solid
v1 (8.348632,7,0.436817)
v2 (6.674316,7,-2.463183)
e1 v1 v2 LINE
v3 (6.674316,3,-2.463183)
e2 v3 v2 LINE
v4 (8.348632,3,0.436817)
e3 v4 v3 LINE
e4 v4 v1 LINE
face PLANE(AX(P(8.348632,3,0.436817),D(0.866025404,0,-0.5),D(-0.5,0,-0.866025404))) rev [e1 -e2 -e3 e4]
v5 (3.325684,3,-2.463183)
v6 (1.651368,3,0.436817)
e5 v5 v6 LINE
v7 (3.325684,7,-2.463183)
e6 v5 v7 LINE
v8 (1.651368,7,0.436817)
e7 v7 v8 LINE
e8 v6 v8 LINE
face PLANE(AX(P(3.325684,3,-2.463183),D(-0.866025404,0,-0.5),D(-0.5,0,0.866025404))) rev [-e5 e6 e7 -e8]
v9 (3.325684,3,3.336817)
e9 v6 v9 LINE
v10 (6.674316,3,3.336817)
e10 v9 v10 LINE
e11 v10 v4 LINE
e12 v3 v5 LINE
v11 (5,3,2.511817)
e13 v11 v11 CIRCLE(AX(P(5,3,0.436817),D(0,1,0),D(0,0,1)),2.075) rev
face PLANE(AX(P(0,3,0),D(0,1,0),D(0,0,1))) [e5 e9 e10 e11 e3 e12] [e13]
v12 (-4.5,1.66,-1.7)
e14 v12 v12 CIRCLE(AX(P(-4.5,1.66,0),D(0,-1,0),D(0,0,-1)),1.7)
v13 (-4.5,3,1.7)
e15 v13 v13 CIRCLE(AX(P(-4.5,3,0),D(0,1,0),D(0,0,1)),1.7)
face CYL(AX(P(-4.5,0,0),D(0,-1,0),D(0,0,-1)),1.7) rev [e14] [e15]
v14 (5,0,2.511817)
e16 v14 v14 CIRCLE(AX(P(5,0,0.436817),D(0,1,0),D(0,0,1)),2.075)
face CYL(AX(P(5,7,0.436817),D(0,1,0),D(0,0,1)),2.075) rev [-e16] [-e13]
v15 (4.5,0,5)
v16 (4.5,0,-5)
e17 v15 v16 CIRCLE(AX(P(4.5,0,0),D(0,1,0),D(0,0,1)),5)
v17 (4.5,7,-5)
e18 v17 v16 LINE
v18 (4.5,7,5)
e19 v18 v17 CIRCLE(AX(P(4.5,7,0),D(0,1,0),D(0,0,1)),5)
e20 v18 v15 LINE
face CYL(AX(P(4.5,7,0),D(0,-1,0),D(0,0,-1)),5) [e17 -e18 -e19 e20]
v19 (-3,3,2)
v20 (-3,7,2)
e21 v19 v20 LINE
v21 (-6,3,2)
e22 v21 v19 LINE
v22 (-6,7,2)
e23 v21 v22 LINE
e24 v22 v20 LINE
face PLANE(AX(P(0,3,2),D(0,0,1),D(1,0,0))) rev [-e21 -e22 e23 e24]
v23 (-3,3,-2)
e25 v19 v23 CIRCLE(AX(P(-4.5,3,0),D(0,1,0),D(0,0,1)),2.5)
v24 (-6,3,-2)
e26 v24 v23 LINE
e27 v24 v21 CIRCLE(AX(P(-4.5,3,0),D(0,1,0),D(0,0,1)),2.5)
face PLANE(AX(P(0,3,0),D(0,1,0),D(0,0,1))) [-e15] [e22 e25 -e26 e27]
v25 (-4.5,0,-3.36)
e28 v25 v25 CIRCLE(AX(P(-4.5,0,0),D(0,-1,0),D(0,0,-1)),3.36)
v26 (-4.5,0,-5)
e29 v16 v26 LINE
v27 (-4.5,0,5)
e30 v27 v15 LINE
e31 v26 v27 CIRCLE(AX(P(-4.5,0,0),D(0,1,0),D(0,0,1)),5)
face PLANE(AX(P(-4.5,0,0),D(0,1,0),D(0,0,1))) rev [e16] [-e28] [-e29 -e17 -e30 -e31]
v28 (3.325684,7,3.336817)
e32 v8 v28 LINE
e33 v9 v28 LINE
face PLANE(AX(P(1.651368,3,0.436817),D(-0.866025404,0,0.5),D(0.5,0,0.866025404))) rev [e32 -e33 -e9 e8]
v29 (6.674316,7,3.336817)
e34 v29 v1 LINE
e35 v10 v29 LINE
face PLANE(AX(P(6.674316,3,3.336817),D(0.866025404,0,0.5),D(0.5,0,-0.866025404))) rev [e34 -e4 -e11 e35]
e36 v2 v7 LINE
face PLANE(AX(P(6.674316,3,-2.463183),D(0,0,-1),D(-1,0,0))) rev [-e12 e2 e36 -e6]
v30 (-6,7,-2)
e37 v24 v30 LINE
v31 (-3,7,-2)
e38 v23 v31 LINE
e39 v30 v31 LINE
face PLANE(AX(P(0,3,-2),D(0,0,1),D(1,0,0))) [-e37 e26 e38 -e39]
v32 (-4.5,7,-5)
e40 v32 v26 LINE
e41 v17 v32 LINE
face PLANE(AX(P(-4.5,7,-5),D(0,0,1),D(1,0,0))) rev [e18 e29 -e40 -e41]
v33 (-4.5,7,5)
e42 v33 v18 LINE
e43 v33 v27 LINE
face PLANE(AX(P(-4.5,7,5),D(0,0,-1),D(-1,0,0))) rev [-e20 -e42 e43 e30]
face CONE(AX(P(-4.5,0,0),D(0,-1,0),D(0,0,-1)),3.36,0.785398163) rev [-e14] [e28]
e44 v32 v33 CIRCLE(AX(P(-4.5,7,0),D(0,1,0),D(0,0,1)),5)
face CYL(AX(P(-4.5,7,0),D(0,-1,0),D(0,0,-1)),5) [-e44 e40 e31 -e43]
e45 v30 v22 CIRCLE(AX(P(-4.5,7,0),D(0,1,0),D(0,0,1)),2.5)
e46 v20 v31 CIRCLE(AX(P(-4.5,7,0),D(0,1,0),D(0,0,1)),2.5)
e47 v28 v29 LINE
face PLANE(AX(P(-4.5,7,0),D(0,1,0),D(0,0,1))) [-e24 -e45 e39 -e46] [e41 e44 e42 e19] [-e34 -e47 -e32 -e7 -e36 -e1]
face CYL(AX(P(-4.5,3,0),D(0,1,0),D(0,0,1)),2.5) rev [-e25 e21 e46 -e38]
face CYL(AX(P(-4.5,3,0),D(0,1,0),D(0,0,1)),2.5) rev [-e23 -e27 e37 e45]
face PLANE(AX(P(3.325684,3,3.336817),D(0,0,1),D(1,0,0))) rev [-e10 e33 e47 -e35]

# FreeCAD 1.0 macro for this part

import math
import FreeCAD as App
import Part
import Sketcher

V = App.Vector
Q = App.Units.Quantity

doc = App.newDocument("Part")
body = doc.addObject("PartDesign::Body", "Body")

sketch1 = body.newObject("Sketcher::SketchObject", "Sketch")
sketch1.AttachmentSupport = (doc.getObject("XZ_Plane"), [""])
sketch1.MapMode = "FlatFace"
sketch1.addGeometry([
    Part.LineSegment(V(4, -5, 0), V(-4, -5, 0)),
    Part.ArcOfCircle(Part.Circle(V(-4, 0, 0), V(0, 0, 1), 5), math.radians(90), math.radians(270)),
    Part.LineSegment(V(-4, 5, 0), V(4, 5, 0)),
    Part.ArcOfCircle(Part.Circle(V(4, 0, 0), V(0, 0, 1), 5), math.radians(-90), math.radians(90)),
], False)
sketch1.addConstraint([
    Sketcher.Constraint("Tangent", 0, 2, 1, 2),
    Sketcher.Constraint("Tangent", 1, 1, 2, 1),
    Sketcher.Constraint("Tangent", 2, 2, 3, 2),
    Sketcher.Constraint("Tangent", 3, 1, 0, 1),
    Sketcher.Constraint("Horizontal", 0),
    Sketcher.Constraint("Horizontal", 2),
    Sketcher.Constraint("Symmetric", 1, 3, 3, 3, -1, 1),
    Sketcher.Constraint("Radius", 1, 5.0),
    Sketcher.Constraint("DistanceX", 0, 2, 0, 1, 9.0),
])
pad1 = body.newObject("PartDesign::Pad", "Pad")
pad1.Profile = sketch1
pad1.Length = 7
pad1.Reversed = True

sketch2 = body.newObject("Sketcher::SketchObject", "Sketch001")
sketch2.AttachmentSupport = (doc.getObject("XZ_Plane"), [""])
sketch2.MapMode = "FlatFace"
sketch2.AttachmentOffset = App.Placement(V(0, 0, -7), App.Rotation())
sketch2.addGeometry([
    Part.LineSegment(V(-3, -2, 0), V(-6, -2, 0)),
    Part.ArcOfCircle(Part.Circle(V(-4.5, 0, 0), V(0, 0, 1), 2.5), math.radians(127), math.radians(233)),
    Part.LineSegment(V(-6, 2, 0), V(-3, 2, 0)),
    Part.ArcOfCircle(Part.Circle(V(-4.5, 0, 0), V(0, 0, 1), 2.5), math.radians(0), math.radians(53)),
    Part.ArcOfCircle(Part.Circle(V(-4.5, 0, 0), V(0, 0, 1), 2.5), math.radians(-53), math.radians(0)),
], False)
sketch2.addConstraint([
    Sketcher.Constraint("Coincident", 0, 2, 1, 2),
    Sketcher.Constraint("Coincident", 1, 1, 2, 1),
    Sketcher.Constraint("Coincident", 2, 2, 3, 2),
    Sketcher.Constraint("Tangent", 3, 1, 4, 2),
    Sketcher.Constraint("Coincident", 4, 1, 0, 1),
    Sketcher.Constraint("Horizontal", 0),
    Sketcher.Constraint("Horizontal", 2),
    Sketcher.Constraint("Coincident", 3, 3, 1, 3),
    Sketcher.Constraint("Equal", 1, 3),
    Sketcher.Constraint("Equal", 3, 4),
    Sketcher.Constraint("Symmetric", 0, 2, 1, 1, -1),
    Sketcher.Constraint("PointOnObject", 3, 1, -1),
    Sketcher.Constraint("Radius", 1, 2.5),
    Sketcher.Constraint("DistanceX", 0, 2, 0, 1, 3.0),
    Sketcher.Constraint("DistanceX", 0, 2, -1, 1, 6.0),
])
pocket1 = body.newObject("PartDesign::Pocket", "Pocket")
pocket1.Profile = sketch2
pocket1.Length = 4
pocket1.Reversed = True

sketch3 = body.newObject("Sketcher::SketchObject", "Sketch002")
sketch3.AttachmentSupport = (doc.getObject("XZ_Plane"), [""])
sketch3.MapMode = "FlatFace"
sketch3.addGeometry(Part.Circle(V(-4.5, 0, 0), V(0, 0, 1), 1.7), False)
sketch3.addConstraint([
    Sketcher.Constraint("PointOnObject", 0, 3, -1),
    Sketcher.Constraint("Diameter", 0, 3.4),
    Sketcher.Constraint("DistanceX", 0, 3, -1, 1, 4.5),
])
doc.recompute()
hole = body.newObject("PartDesign::Hole", "Hole")
hole.Profile = sketch3
hole.ThreadType = "None"
hole.Diameter = 3.4
hole.DepthType = "Dimension"
hole.Depth = 7.5
hole.DrillPoint = "Angled"
hole.DrillPointAngle = 118
hole.HoleCutType = "Countersink"
hole.HoleCutDiameter = 6.72
hole.HoleCutCountersinkAngle = 90

sketch4 = body.newObject("Sketcher::SketchObject", "Sketch003")
sketch4.AttachmentSupport = (doc.getObject("XZ_Plane"), [""])
sketch4.MapMode = "FlatFace"
sketch4.AttachmentOffset = App.Placement(V(0, 0, -7), App.Rotation())
sketch4.addGeometry(Part.Circle(V(5, 0.4, 0), V(0, 0, 1), 2.1), False)
sketch4.addConstraint([
    Sketcher.Constraint("Diameter", 0, 4.15),
    Sketcher.Constraint("DistanceX", -1, 1, 0, 3, 5.0),
    Sketcher.Constraint("DistanceY", -1, 1, 0, 3, 0.436817),
])
doc.recompute()
hole2 = body.newObject("PartDesign::Hole", "Hole001")
hole2.Profile = sketch4
hole2.ThreadType = "None"
hole2.Diameter = 4.15
hole2.DepthType = "ThroughAll"
hole2.Reversed = True

sketch5 = body.newObject("Sketcher::SketchObject", "Sketch004")
sketch5.AttachmentSupport = (doc.getObject("XZ_Plane"), [""])
sketch5.MapMode = "FlatFace"
sketch5.AttachmentOffset = App.Placement(V(0, 0, -7), App.Rotation())
sketch5.addGeometry([
    Part.LineSegment(V(8.3, 0.4, 0), V(6.7, -2.5, 0)),
    Part.LineSegment(V(6.7, -2.5, 0), V(3.3, -2.5, 0)),
    Part.LineSegment(V(3.3, -2.5, 0), V(1.7, 0.4, 0)),
    Part.LineSegment(V(1.7, 0.4, 0), V(3.3, 3.3, 0)),
    Part.LineSegment(V(3.3, 3.3, 0), V(6.7, 3.3, 0)),
    Part.LineSegment(V(6.7, 3.3, 0), V(8.3, 0.4, 0)),
], False)
sketch5.addConstraint([
    Sketcher.Constraint("Coincident", 0, 2, 1, 1),
    Sketcher.Constraint("Coincident", 1, 2, 2, 1),
    Sketcher.Constraint("Coincident", 2, 2, 3, 1),
    Sketcher.Constraint("Coincident", 3, 2, 4, 1),
    Sketcher.Constraint("Coincident", 4, 2, 5, 1),
    Sketcher.Constraint("Coincident", 5, 2, 0, 1),
    Sketcher.Constraint("Horizontal", 1),
    Sketcher.Constraint("Horizontal", 4),
    Sketcher.Constraint("Parallel", 0, 3),
    Sketcher.Constraint("Parallel", 2, 5),
    Sketcher.Constraint("Horizontal", 2, 2, 5, 2),
    Sketcher.Constraint("Vertical", 1, 2, 3, 2),
    Sketcher.Constraint("Vertical", 0, 2, 4, 2),
    Sketcher.Constraint("Angle", 0, Q("-120 deg")),
    Sketcher.Constraint("DistanceY", 1, 2, 2, 2, 2.9),
    Sketcher.Constraint("DistanceX", 1, 2, 1, 1, 3.348632),
    Sketcher.Constraint("DistanceX", -1, 1, 2, 2, 1.651368),
    Sketcher.Constraint("DistanceY", 0, 2, -1, 1, 2.463183),
])
pocket2 = body.newObject("PartDesign::Pocket", "Pocket001")
pocket2.Profile = sketch5
pocket2.Length = 4
pocket2.Reversed = True

doc.recompute()
